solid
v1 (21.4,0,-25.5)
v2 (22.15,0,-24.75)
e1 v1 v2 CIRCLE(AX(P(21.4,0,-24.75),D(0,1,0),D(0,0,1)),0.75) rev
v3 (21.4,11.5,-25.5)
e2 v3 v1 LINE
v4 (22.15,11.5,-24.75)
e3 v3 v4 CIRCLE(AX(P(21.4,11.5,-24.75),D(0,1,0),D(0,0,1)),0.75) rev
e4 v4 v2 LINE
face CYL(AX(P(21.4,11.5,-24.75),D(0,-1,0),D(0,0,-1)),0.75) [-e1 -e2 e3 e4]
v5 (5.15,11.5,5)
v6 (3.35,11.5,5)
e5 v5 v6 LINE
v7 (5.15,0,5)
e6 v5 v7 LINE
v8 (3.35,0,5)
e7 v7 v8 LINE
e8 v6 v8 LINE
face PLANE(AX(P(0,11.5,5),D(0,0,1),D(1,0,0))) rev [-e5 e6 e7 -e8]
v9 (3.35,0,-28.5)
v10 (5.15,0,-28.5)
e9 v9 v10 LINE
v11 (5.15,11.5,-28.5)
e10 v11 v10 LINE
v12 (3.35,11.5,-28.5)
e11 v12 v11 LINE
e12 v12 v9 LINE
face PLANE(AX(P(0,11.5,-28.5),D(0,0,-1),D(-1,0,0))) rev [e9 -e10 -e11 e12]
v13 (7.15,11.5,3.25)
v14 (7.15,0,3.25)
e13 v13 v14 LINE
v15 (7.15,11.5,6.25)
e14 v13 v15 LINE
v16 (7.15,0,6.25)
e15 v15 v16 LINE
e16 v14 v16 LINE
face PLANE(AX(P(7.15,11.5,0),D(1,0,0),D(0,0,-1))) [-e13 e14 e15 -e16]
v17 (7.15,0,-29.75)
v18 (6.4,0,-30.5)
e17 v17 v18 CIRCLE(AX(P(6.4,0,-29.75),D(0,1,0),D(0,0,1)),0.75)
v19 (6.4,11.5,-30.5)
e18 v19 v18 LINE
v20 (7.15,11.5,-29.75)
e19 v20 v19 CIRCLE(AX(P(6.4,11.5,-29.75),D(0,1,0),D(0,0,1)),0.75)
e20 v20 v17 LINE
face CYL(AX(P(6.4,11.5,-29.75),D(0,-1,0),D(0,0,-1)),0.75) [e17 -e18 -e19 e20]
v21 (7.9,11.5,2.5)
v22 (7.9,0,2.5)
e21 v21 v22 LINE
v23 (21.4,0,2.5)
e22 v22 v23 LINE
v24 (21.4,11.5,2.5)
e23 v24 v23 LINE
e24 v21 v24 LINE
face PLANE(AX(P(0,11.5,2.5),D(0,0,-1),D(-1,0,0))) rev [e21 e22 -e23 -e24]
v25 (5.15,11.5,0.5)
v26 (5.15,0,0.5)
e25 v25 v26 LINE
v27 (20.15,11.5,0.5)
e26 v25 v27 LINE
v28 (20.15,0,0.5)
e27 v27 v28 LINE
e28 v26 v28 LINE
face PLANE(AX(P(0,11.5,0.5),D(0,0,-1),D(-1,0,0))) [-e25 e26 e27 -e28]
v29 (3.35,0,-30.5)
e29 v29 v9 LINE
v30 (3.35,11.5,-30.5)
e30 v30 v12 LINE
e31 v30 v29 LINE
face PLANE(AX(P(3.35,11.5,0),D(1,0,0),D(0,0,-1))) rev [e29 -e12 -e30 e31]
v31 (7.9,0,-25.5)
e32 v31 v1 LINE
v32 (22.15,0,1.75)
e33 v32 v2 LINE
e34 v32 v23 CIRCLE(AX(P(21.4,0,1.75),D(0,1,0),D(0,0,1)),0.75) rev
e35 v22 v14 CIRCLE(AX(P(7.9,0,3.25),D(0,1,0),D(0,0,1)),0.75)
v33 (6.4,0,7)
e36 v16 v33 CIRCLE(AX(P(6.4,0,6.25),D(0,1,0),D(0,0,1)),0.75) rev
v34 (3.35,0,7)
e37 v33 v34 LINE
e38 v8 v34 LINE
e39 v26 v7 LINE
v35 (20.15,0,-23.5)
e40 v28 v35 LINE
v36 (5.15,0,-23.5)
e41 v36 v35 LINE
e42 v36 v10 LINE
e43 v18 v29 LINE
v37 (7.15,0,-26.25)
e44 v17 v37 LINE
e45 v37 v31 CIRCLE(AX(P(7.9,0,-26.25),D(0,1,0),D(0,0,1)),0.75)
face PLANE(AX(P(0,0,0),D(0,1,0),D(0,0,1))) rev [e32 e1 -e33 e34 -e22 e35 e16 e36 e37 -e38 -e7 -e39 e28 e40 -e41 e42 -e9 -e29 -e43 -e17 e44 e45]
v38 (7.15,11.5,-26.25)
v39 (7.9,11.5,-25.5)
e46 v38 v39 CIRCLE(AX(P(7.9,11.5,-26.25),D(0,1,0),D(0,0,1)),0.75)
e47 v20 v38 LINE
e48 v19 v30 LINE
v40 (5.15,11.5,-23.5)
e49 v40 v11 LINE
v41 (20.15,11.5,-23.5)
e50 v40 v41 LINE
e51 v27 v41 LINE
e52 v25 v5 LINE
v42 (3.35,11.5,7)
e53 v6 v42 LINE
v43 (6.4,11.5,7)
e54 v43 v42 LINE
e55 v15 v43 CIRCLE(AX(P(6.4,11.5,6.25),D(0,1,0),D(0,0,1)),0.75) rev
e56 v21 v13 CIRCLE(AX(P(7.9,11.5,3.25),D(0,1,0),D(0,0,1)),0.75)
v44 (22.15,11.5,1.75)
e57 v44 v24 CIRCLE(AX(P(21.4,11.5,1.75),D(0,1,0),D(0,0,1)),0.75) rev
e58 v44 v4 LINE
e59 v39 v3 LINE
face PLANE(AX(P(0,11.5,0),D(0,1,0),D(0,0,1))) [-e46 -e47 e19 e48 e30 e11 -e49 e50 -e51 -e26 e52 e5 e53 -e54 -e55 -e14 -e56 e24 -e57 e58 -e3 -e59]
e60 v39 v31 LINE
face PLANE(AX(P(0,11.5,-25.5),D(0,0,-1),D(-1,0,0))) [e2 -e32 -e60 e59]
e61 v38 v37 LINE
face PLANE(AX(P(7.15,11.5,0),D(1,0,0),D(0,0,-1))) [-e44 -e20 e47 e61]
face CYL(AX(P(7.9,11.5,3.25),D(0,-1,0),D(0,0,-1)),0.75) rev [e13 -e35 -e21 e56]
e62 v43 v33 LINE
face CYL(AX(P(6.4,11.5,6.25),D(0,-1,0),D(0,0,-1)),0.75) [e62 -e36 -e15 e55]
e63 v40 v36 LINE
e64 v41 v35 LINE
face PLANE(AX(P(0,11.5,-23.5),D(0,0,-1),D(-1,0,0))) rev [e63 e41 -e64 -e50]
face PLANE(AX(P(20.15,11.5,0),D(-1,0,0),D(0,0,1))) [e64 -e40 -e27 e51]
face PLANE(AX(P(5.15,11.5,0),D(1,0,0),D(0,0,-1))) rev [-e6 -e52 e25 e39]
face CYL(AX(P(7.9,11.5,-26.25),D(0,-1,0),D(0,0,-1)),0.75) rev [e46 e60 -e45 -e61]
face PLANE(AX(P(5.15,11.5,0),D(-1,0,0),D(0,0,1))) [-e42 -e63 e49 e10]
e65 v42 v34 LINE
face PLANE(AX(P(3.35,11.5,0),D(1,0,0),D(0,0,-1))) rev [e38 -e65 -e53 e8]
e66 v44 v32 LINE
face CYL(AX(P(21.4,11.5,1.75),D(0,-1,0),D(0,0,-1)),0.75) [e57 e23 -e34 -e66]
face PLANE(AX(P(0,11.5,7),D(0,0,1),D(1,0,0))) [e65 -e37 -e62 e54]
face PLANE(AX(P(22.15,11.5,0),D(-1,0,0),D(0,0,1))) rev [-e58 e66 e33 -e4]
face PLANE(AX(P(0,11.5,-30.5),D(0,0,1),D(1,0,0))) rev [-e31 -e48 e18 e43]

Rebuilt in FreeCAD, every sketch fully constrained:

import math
import FreeCAD as App
import Part
import Sketcher

V = App.Vector
Q = App.Units.Quantity

doc = App.newDocument("Part")
body = doc.addObject("PartDesign::Body", "Body")

sketch1 = body.newObject("Sketcher::SketchObject", "Sketch")
sketch1.AttachmentSupport = (doc.getObject("XZ_Plane"), [""])
sketch1.MapMode = "FlatFace"
sketch1.addGeometry(Part.LineSegment(V(5.2, 5, 0), V(3.4, 5, 0)), False)
sketch1.addGeometry(Part.LineSegment(V(3.4, 5, 0), V(3.4, 7, 0)), False)
sketch1.addGeometry(Part.LineSegment(V(3.4, 7, 0), V(6.4, 7, 0)), False)
sketch1.addGeometry(Part.ArcOfCircle(Part.Circle(V(6.4, 6.2, 0), V(0, 0, 1), 0.8), math.radians(0), math.radians(90)), False)
sketch1.addGeometry(Part.LineSegment(V(7.2, 6.2, 0), V(7.2, 3.2, 0)), False)
sketch1.addGeometry(Part.ArcOfCircle(Part.Circle(V(7.9, 3.2, 0), V(0, 0, 1), 0.8), math.radians(180), math.radians(270)), False)
sketch1.addGeometry(Part.LineSegment(V(7.9, 2.5, 0), V(21.4, 2.5, 0)), False)
sketch1.addGeometry(Part.ArcOfCircle(Part.Circle(V(21.4, 1.8, 0), V(0, 0, 1), 0.8), math.radians(0), math.radians(90)), False)
sketch1.addGeometry(Part.LineSegment(V(22.1, 1.8, 0), V(22.1, -24.8, 0)), False)
sketch1.addGeometry(Part.ArcOfCircle(Part.Circle(V(21.4, -24.8, 0), V(0, 0, 1), 0.8), math.radians(-90), math.radians(0)), False)
sketch1.addGeometry(Part.LineSegment(V(21.4, -25.5, 0), V(7.9, -25.5, 0)), False)
sketch1.addGeometry(Part.ArcOfCircle(Part.Circle(V(7.9, -26.2, 0), V(0, 0, 1), 0.8), math.radians(90), math.radians(180)), False)
sketch1.addGeometry(Part.LineSegment(V(7.2, -26.2, 0), V(7.2, -29.8, 0)), False)
sketch1.addGeometry(Part.ArcOfCircle(Part.Circle(V(6.4, -29.8, 0), V(0, 0, 1), 0.8), math.radians(-90), math.radians(0)), False)
sketch1.addGeometry(Part.LineSegment(V(6.4, -30.5, 0), V(3.4, -30.5, 0)), False)
sketch1.addGeometry(Part.LineSegment(V(3.4, -30.5, 0), V(3.4, -28.5, 0)), False)
sketch1.addGeometry(Part.LineSegment(V(3.4, -28.5, 0), V(5.2, -28.5, 0)), False)
sketch1.addGeometry(Part.LineSegment(V(5.2, -28.5, 0), V(5.2, -23.5, 0)), False)
sketch1.addGeometry(Part.LineSegment(V(5.2, -23.5, 0), V(20.1, -23.5, 0)), False)
sketch1.addGeometry(Part.LineSegment(V(20.1, -23.5, 0), V(20.1, 0.5, 0)), False)
sketch1.addGeometry(Part.LineSegment(V(20.1, 0.5, 0), V(5.2, 0.5, 0)), False)
sketch1.addGeometry(Part.LineSegment(V(5.2, 0.5, 0), V(5.2, 5, 0)), False)
sketch1.addConstraint(Sketcher.Constraint("Coincident", 0, 2, 1, 1))
sketch1.addConstraint(Sketcher.Constraint("Coincident", 1, 2, 2, 1))
sketch1.addConstraint(Sketcher.Constraint("Tangent", 2, 2, 3, 2))
sketch1.addConstraint(Sketcher.Constraint("Tangent", 3, 1, 4, 1))
sketch1.addConstraint(Sketcher.Constraint("Tangent", 4, 2, 5, 1))
sketch1.addConstraint(Sketcher.Constraint("Tangent", 5, 2, 6, 1))
sketch1.addConstraint(Sketcher.Constraint("Tangent", 6, 2, 7, 2))
sketch1.addConstraint(Sketcher.Constraint("Tangent", 7, 1, 8, 1))
sketch1.addConstraint(Sketcher.Constraint("Tangent", 8, 2, 9, 2))
sketch1.addConstraint(Sketcher.Constraint("Tangent", 9, 1, 10, 1))
sketch1.addConstraint(Sketcher.Constraint("Tangent", 10, 2, 11, 1))
sketch1.addConstraint(Sketcher.Constraint("Tangent", 11, 2, 12, 1))
sketch1.addConstraint(Sketcher.Constraint("Tangent", 12, 2, 13, 2))
sketch1.addConstraint(Sketcher.Constraint("Tangent", 13, 1, 14, 1))
sketch1.addConstraint(Sketcher.Constraint("Coincident", 14, 2, 15, 1))
sketch1.addConstraint(Sketcher.Constraint("Coincident", 15, 2, 16, 1))
sketch1.addConstraint(Sketcher.Constraint("Coincident", 16, 2, 17, 1))
sketch1.addConstraint(Sketcher.Constraint("Coincident", 17, 2, 18, 1))
sketch1.addConstraint(Sketcher.Constraint("Coincident", 18, 2, 19, 1))
sketch1.addConstraint(Sketcher.Constraint("Coincident", 19, 2, 20, 1))
sketch1.addConstraint(Sketcher.Constraint("Coincident", 20, 2, 21, 1))
sketch1.addConstraint(Sketcher.Constraint("Coincident", 21, 2, 0, 1))
sketch1.addConstraint(Sketcher.Constraint("Horizontal", 0))
sketch1.addConstraint(Sketcher.Constraint("Vertical", 1))
sketch1.addConstraint(Sketcher.Constraint("Horizontal", 2))
sketch1.addConstraint(Sketcher.Constraint("Vertical", 4))
sketch1.addConstraint(Sketcher.Constraint("Horizontal", 6))
sketch1.addConstraint(Sketcher.Constraint("Vertical", 8))
sketch1.addConstraint(Sketcher.Constraint("Horizontal", 10))
sketch1.addConstraint(Sketcher.Constraint("Vertical", 12))
sketch1.addConstraint(Sketcher.Constraint("Horizontal", 14))
sketch1.addConstraint(Sketcher.Constraint("Vertical", 15))
sketch1.addConstraint(Sketcher.Constraint("Horizontal", 16))
sketch1.addConstraint(Sketcher.Constraint("Vertical", 17))
sketch1.addConstraint(Sketcher.Constraint("Horizontal", 18))
sketch1.addConstraint(Sketcher.Constraint("Vertical", 19))
sketch1.addConstraint(Sketcher.Constraint("Horizontal", 20))
sketch1.addConstraint(Sketcher.Constraint("Vertical", 21))
sketch1.addConstraint(Sketcher.Constraint("Equal", 3, 5))
sketch1.addConstraint(Sketcher.Constraint("Equal", 5, 7))
sketch1.addConstraint(Sketcher.Constraint("Equal", 7, 9))
sketch1.addConstraint(Sketcher.Constraint("Equal", 9, 11))
sketch1.addConstraint(Sketcher.Constraint("Equal", 11, 13))
sketch1.addConstraint(Sketcher.Constraint("Vertical", 5, 3, 11, 3))
sketch1.addConstraint(Sketcher.Constraint("Vertical", 1, 2, 14, 2))
sketch1.addConstraint(Sketcher.Constraint("Vertical", 17, 2, 20, 2))
sketch1.addConstraint(Sketcher.Constraint("Equal", 1, 15))
sketch1.addConstraint(Sketcher.Constraint("DistanceX", 18, 1, 18, 2, Q("15 mm")))
sketch1.addConstraint(Sketcher.Constraint("DistanceY", 1, 1, 1, 2, Q("2 mm")))
sketch1.addConstraint(Sketcher.Constraint("DistanceY", 4, 2, 4, 1, Q("3 mm")))
sketch1.addConstraint(Sketcher.Constraint("DistanceY", 17, 1, 17, 2, Q("5 mm")))
sketch1.addConstraint(Sketcher.Constraint("DistanceY", 19, 1, 19, 2, Q("24 mm")))
sketch1.addConstraint(Sketcher.Constraint("Radius", 3, Q("0.75 mm")))
sketch1.addConstraint(Sketcher.Constraint("DistanceX", 0, 2, 0, 1, Q("1.8 mm")))
sketch1.addConstraint(Sketcher.Constraint("DistanceX", 6, 1, 6, 2, Q("13.5 mm")))
sketch1.addConstraint(Sketcher.Constraint("DistanceY", 8, 2, 8, 1, Q("26.5 mm")))
sketch1.addConstraint(Sketcher.Constraint("DistanceY", 12, 2, 12, 1, Q("3.5 mm")))
sketch1.addConstraint(Sketcher.Constraint("DistanceY", -1, 1, 0, 2, Q("5 mm")))
sketch1.addConstraint(Sketcher.Constraint("DistanceX", 16, 2, 12, 2, Q("2 mm")))
sketch1.addConstraint(Sketcher.Constraint("DistanceX", -1, 1, 3, 3, Q("6.4 mm")))
pad1 = body.newObject("PartDesign::Pad", "Pad")
pad1.Profile = sketch1
pad1.Length = 11.5
pad1.Reversed = True

doc.recompute()
